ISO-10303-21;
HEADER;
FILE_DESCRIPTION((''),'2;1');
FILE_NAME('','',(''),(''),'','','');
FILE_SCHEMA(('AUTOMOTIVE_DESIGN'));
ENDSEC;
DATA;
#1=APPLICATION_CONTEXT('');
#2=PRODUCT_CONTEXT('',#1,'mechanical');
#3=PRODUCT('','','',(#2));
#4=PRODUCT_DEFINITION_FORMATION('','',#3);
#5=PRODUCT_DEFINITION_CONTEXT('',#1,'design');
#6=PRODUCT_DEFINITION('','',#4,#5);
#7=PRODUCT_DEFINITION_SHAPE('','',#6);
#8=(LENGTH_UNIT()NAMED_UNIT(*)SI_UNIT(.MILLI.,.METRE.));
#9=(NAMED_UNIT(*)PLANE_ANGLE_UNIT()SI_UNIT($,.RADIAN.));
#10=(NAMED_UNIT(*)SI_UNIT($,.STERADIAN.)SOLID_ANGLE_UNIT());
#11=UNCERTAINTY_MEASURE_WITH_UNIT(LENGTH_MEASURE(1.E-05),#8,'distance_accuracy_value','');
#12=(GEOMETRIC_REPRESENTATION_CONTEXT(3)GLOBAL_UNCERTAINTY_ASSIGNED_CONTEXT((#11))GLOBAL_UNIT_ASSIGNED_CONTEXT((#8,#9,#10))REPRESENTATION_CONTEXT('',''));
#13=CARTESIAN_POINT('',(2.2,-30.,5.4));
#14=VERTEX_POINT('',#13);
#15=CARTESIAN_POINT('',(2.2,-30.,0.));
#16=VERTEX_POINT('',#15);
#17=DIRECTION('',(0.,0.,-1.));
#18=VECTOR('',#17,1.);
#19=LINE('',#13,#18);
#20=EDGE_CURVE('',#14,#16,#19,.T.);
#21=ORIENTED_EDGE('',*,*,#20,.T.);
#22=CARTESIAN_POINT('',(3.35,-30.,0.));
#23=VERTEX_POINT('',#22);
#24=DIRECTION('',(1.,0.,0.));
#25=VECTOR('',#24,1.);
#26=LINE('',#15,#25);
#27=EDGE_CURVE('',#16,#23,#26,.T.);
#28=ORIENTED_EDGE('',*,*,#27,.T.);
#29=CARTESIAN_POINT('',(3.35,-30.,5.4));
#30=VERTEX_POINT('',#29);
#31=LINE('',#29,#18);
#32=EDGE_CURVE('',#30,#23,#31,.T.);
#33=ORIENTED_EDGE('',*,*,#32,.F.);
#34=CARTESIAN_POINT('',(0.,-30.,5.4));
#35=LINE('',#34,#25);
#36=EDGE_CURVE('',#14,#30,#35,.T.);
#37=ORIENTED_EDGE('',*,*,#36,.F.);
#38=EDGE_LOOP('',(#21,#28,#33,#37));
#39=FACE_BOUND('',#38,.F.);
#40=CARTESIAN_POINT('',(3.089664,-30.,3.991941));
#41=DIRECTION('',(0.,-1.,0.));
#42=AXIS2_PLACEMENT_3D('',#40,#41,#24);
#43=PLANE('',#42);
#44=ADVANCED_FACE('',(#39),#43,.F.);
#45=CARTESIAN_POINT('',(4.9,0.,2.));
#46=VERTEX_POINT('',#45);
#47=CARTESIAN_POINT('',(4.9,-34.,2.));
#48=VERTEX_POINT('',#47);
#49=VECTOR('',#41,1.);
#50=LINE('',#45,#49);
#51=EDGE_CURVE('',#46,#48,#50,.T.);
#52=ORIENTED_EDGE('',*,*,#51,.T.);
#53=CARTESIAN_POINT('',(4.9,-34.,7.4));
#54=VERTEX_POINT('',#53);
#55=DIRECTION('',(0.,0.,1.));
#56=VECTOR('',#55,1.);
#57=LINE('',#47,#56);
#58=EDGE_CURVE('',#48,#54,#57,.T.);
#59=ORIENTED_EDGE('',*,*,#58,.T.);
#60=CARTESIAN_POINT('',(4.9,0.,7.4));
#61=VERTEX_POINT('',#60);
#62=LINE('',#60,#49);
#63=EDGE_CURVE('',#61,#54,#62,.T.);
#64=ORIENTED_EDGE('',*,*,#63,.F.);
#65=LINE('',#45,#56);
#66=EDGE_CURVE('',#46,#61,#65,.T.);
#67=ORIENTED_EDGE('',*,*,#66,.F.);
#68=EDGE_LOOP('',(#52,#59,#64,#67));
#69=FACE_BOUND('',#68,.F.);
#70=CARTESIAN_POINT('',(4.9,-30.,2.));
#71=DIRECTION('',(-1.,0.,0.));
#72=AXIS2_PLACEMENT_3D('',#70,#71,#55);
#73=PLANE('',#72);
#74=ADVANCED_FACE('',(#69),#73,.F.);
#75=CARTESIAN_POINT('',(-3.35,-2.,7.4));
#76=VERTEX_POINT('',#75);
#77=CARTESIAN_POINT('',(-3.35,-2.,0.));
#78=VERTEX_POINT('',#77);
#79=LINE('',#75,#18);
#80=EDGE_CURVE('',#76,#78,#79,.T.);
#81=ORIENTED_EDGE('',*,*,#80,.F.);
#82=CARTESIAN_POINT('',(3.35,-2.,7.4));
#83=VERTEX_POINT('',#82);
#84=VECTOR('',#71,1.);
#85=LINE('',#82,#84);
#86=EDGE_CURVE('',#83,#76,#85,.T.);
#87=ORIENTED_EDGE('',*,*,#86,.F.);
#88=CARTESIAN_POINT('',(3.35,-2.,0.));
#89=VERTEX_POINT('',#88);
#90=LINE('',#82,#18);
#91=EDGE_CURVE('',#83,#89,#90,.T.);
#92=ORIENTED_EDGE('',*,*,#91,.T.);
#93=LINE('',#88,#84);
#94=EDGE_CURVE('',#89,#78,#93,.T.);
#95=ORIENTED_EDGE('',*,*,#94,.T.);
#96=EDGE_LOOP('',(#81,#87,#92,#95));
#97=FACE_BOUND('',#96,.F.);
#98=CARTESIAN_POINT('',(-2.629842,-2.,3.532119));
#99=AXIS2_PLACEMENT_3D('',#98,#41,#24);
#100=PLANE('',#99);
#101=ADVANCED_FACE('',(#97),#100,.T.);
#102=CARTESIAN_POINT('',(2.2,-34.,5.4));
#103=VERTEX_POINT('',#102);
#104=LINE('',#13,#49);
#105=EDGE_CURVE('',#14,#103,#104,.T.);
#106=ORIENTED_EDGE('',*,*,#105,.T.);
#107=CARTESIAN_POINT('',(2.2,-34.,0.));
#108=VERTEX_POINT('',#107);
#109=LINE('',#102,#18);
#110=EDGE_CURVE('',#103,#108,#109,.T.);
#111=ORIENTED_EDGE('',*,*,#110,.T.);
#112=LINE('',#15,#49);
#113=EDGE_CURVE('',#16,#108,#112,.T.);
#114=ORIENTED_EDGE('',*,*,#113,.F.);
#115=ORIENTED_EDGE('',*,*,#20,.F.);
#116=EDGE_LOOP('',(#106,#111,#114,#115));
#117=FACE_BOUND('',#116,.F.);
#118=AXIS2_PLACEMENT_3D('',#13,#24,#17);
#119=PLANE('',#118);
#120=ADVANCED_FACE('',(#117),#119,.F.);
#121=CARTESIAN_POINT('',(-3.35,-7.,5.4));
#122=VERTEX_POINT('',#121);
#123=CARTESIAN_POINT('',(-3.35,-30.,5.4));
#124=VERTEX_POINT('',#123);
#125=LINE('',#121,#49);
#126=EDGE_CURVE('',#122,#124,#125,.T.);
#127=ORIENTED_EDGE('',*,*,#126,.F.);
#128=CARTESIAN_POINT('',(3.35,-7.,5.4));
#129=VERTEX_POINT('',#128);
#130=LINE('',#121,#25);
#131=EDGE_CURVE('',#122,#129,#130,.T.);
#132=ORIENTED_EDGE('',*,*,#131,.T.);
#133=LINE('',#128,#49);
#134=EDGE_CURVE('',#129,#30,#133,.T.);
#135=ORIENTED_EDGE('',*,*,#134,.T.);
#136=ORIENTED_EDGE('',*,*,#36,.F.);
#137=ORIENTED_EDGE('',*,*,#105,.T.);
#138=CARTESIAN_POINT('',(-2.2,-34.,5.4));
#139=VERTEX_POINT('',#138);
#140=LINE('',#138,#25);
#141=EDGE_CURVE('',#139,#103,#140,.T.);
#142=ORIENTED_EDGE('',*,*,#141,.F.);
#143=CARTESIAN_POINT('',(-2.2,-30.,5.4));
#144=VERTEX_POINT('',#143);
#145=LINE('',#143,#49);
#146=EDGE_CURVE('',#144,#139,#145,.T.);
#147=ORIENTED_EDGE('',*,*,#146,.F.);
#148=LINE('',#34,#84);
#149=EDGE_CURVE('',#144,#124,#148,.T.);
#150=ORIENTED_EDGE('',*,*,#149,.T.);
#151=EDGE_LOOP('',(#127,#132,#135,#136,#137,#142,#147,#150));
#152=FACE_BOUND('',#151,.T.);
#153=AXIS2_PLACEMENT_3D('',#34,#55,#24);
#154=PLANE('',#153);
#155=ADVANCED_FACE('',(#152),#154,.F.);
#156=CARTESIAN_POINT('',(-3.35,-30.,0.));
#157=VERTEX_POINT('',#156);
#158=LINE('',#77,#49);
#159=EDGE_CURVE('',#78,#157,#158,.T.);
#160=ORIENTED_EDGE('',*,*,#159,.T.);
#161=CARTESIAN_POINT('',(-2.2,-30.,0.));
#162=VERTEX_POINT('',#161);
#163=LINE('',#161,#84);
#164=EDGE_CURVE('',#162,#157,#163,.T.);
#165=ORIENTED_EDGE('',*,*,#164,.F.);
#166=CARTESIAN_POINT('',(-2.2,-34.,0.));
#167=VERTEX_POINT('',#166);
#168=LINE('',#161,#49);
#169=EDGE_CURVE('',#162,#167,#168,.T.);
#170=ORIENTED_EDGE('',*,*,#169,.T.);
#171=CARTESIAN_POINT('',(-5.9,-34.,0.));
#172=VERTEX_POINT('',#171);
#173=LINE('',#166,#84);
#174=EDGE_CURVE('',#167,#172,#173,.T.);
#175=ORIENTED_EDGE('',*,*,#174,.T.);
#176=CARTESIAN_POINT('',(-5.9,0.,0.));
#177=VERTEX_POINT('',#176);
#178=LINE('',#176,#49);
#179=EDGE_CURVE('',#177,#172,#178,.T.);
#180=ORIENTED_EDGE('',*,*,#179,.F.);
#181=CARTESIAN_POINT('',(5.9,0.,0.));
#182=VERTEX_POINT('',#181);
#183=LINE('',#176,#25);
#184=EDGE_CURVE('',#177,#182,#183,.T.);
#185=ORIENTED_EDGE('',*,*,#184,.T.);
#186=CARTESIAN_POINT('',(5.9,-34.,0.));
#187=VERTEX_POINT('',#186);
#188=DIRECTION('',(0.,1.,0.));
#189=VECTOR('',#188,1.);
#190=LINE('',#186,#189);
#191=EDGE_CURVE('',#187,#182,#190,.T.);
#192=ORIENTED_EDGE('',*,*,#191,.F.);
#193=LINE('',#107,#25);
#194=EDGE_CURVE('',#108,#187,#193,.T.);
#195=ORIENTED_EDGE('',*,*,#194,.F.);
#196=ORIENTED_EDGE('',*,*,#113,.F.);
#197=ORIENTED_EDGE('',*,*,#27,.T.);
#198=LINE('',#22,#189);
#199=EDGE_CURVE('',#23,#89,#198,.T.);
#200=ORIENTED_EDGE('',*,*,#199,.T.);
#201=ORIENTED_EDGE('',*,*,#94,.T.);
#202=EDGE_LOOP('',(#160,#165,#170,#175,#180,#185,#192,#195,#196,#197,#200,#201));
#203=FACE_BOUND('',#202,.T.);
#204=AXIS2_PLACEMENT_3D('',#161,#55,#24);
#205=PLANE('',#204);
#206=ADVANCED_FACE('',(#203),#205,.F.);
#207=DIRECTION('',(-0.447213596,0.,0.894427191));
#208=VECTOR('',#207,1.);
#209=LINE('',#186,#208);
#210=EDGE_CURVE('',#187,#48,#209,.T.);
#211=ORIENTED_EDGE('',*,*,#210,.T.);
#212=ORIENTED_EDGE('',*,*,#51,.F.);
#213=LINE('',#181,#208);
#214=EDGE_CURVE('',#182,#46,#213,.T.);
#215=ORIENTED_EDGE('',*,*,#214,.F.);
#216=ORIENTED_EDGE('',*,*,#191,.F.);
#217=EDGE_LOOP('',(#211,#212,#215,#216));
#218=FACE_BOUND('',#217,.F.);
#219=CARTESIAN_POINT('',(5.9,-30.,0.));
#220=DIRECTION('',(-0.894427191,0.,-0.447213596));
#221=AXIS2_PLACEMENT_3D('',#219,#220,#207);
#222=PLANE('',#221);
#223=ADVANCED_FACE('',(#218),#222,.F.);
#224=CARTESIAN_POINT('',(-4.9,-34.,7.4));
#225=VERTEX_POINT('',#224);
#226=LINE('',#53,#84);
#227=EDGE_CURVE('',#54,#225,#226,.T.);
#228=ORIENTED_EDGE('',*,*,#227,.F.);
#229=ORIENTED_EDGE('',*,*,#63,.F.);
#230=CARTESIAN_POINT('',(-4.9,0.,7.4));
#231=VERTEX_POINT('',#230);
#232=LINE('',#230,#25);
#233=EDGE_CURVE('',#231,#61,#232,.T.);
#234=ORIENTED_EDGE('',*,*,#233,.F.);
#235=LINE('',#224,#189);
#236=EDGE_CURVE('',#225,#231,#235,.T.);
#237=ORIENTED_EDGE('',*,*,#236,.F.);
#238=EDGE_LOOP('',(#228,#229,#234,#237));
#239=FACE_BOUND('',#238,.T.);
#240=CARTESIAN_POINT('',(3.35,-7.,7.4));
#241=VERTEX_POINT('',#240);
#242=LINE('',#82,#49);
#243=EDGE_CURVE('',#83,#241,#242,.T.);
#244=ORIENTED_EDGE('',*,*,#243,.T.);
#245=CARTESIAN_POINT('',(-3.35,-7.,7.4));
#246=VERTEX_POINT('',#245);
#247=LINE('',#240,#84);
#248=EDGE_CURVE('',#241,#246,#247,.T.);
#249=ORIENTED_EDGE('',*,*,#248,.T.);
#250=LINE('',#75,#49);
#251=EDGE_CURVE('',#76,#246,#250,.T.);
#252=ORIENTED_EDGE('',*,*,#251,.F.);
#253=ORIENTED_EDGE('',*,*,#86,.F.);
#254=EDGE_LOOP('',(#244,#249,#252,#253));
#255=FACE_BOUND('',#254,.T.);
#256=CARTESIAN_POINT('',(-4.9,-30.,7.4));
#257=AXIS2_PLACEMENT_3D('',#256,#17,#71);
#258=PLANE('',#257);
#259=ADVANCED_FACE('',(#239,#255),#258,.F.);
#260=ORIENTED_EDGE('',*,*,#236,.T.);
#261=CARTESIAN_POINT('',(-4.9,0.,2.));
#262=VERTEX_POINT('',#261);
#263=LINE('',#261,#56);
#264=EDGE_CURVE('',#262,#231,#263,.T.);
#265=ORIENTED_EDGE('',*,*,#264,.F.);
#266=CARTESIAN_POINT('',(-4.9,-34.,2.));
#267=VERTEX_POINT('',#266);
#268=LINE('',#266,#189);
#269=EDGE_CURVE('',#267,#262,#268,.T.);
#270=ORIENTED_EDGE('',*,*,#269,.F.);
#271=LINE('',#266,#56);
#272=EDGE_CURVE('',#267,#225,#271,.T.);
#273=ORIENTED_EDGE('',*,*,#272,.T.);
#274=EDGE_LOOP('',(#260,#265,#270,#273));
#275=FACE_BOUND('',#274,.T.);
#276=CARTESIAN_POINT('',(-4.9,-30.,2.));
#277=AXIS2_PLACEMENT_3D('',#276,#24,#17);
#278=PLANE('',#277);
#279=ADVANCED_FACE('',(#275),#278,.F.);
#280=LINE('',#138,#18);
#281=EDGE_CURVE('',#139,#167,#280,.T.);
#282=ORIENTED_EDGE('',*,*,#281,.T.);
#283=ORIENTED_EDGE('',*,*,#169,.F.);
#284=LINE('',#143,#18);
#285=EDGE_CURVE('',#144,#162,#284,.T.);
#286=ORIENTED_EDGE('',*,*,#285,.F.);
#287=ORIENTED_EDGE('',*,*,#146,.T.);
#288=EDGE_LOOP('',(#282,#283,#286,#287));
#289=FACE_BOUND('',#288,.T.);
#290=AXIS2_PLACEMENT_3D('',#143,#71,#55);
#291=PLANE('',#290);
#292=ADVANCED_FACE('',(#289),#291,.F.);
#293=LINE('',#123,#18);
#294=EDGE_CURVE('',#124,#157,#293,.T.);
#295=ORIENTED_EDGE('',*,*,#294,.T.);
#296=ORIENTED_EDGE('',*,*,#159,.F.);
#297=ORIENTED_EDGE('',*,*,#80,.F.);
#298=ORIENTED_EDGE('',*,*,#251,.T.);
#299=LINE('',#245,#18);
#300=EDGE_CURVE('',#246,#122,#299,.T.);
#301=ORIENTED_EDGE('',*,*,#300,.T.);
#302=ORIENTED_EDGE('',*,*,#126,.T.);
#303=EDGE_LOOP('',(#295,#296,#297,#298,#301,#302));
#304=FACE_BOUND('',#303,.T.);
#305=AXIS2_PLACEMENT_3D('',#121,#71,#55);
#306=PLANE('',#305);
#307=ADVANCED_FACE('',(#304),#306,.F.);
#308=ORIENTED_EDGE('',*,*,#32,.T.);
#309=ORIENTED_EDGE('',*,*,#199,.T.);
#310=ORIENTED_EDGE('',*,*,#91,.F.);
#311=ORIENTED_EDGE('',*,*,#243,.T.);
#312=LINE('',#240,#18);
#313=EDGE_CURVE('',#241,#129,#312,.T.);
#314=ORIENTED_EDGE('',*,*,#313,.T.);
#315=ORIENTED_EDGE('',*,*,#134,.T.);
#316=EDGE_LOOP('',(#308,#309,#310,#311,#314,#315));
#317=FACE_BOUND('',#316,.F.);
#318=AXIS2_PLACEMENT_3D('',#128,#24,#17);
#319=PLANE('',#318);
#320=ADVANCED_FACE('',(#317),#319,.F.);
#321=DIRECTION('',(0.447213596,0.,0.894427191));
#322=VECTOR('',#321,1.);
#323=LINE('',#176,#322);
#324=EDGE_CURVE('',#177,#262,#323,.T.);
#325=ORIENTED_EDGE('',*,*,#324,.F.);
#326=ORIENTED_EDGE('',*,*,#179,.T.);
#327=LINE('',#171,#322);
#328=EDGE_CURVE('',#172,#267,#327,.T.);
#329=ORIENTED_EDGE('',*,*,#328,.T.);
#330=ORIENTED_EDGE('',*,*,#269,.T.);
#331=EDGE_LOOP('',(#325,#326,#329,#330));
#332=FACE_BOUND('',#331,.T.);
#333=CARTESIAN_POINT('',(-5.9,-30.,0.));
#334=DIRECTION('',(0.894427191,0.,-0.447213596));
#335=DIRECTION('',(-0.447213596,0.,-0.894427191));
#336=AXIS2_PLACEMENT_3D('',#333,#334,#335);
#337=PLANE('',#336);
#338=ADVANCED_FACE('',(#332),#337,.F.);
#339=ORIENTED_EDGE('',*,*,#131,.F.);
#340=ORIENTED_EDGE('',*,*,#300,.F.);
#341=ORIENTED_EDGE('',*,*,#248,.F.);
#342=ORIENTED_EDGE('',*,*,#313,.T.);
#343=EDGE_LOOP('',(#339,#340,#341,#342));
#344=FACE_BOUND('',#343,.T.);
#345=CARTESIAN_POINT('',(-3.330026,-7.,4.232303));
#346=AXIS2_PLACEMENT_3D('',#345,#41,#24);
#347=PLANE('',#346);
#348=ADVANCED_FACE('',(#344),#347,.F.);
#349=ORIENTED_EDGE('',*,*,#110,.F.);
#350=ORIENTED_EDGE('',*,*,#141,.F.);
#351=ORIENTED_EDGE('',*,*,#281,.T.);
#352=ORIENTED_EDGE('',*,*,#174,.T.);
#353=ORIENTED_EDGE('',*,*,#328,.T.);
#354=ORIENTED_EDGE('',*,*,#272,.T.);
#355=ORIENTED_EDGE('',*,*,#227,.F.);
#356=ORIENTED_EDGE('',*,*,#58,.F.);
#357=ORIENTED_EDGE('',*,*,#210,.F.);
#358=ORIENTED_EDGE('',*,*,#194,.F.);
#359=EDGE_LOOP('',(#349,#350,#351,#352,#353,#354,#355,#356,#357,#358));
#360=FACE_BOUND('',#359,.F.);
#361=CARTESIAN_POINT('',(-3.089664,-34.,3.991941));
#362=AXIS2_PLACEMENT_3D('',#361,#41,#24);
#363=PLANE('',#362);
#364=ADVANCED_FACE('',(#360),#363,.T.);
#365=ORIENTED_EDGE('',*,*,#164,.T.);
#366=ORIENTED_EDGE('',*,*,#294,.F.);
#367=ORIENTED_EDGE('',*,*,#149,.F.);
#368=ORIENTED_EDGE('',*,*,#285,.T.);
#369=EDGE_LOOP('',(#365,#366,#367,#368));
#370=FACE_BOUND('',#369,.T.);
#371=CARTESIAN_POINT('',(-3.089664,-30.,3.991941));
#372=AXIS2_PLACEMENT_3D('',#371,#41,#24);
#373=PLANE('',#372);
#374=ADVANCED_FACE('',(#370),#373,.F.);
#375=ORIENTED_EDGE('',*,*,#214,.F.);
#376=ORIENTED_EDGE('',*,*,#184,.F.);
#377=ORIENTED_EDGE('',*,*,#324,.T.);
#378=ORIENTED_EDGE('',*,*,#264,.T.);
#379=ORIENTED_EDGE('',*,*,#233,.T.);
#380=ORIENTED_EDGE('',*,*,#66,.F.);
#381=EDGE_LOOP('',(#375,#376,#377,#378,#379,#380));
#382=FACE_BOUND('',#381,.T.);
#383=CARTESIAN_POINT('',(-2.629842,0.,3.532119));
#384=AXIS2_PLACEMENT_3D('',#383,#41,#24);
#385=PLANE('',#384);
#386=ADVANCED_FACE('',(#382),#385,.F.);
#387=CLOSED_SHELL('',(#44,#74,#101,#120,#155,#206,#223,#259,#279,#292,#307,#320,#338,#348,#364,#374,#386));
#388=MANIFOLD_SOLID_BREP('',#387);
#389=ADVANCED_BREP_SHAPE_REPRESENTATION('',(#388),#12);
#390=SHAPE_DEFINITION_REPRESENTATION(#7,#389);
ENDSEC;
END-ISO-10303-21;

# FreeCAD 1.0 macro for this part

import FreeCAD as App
import Part
import Sketcher
from FreeCAD import Vector
Q = App.Units.Quantity

doc = App.newDocument("Part")
body = doc.addObject("PartDesign::Body", "Body")

# Sketch on XZ plane
sketch1 = doc.addObject("Sketcher::SketchObject", "Sketch")
body.addObject(sketch1)
sketch1.AttachmentSupport = (doc.XZ_Plane, [""])
sketch1.MapMode = "FlatFace"
sketch1.addGeometry([
    Part.LineSegment(Vector(5.9, 0, 0), Vector(4.9, 2, 0)),  # 0
    Part.LineSegment(Vector(4.9, 2, 0), Vector(4.9, 7.4, 0)),  # 1
    Part.LineSegment(Vector(4.9, 7.4, 0), Vector(0, 7.4, 0)),  # 2
    Part.LineSegment(Vector(0, 7.4, 0), Vector(0, 0, 0)),  # 3
    Part.LineSegment(Vector(0, 0, 0), Vector(5.9, 0, 0)),  # 4
], False)
sketch1.addConstraint([
    Sketcher.Constraint("Coincident", 0, 2, 1, 1),
    Sketcher.Constraint("Coincident", 1, 2, 2, 1),
    Sketcher.Constraint("Coincident", 2, 2, 3, 1),
    Sketcher.Constraint("Coincident", 3, 2, 4, 1),
    Sketcher.Constraint("Coincident", 4, 2, 0, 1),
    Sketcher.Constraint("Vertical", 1),
    Sketcher.Constraint("Horizontal", 2),
    Sketcher.Constraint("Vertical", 3),
    Sketcher.Constraint("Horizontal", 4),
    Sketcher.Constraint("Coincident", 3, 2, -1, 1),
    Sketcher.Constraint("DistanceX", 2, 2, 2, 1, Q("4.9 mm")),
    Sketcher.Constraint("DistanceX", 4, 1, 4, 2, Q("5.9 mm")),
    Sketcher.Constraint("DistanceY", 1, 1, 1, 2, Q("5.4 mm")),
    Sketcher.Constraint("DistanceY", 3, 2, 3, 1, Q("7.4 mm")),
])
pad1 = doc.addObject("PartDesign::Pad", "Pad")
body.addObject(pad1)
pad1.Profile = sketch1
pad1.Length = 2

# Sketch on XZ plane
sketch2 = doc.addObject("Sketcher::SketchObject", "Sketch001")
body.addObject(sketch2)
sketch2.AttachmentSupport = (doc.XZ_Plane, [""])
sketch2.MapMode = "FlatFace"
sketch2.AttachmentOffset = App.Placement(Vector(0, 0, 2), App.Rotation())
sketch2.addGeometry([
    Part.LineSegment(Vector(5.9, 0, 0), Vector(4.9, 2, 0)),  # 0
    Part.LineSegment(Vector(4.9, 2, 0), Vector(4.9, 7.4, 0)),  # 1
    Part.LineSegment(Vector(4.9, 7.4, 0), Vector(3.4, 7.4, 0)),  # 2
    Part.LineSegment(Vector(3.4, 7.4, 0), Vector(3.4, 0, 0)),  # 3
    Part.LineSegment(Vector(3.4, 0, 0), Vector(5.9, 0, 0)),  # 4
], False)
sketch2.addConstraint([
    Sketcher.Constraint("Coincident", 0, 2, 1, 1),
    Sketcher.Constraint("Coincident", 1, 2, 2, 1),
    Sketcher.Constraint("Coincident", 2, 2, 3, 1),
    Sketcher.Constraint("Coincident", 3, 2, 4, 1),
    Sketcher.Constraint("Coincident", 4, 2, 0, 1),
    Sketcher.Constraint("Vertical", 1),
    Sketcher.Constraint("Horizontal", 2),
    Sketcher.Constraint("Vertical", 3),
    Sketcher.Constraint("Horizontal", 4),
    Sketcher.Constraint("PointOnObject", 3, 2, -1),
    Sketcher.Constraint("DistanceY", 1, 1, 1, 2, Q("5.4 mm")),
    Sketcher.Constraint("DistanceY", 3, 2, 3, 1, Q("7.4 mm")),
    Sketcher.Constraint("DistanceX", 0, 2, 4, 2, Q("1 mm")),
    Sketcher.Constraint("DistanceX", 2, 2, 2, 1, Q("1.55 mm")),
    Sketcher.Constraint("DistanceX", -1, 1, 0, 2, Q("4.9 mm")),
])
pad2 = doc.addObject("PartDesign::Pad", "Pad001")
body.addObject(pad2)
pad2.Profile = sketch2
pad2.Length = 5

# Sketch on XZ plane
sketch3 = doc.addObject("Sketcher::SketchObject", "Sketch002")
body.addObject(sketch3)
sketch3.AttachmentSupport = (doc.XZ_Plane, [""])
sketch3.MapMode = "FlatFace"
sketch3.AttachmentOffset = App.Placement(Vector(0, 0, 7), App.Rotation())
sketch3.addGeometry([
    Part.LineSegment(Vector(5.9, 0, 0), Vector(4.9, 2, 0)),  # 0
    Part.LineSegment(Vector(4.9, 2, 0), Vector(4.9, 7.4, 0)),  # 1
    Part.LineSegment(Vector(4.9, 7.4, 0), Vector(0, 7.4, 0)),  # 2
    Part.LineSegment(Vector(0, 7.4, 0), Vector(0, 5.4, 0)),  # 3
    Part.LineSegment(Vector(0, 5.4, 0), Vector(3.4, 5.4, 0)),  # 4
    Part.LineSegment(Vector(3.4, 5.4, 0), Vector(3.4, 0, 0)),  # 5
    Part.LineSegment(Vector(3.4, 0, 0), Vector(5.9, 0, 0)),  # 6
], False)
sketch3.addConstraint([
    Sketcher.Constraint("Coincident", 0, 2, 1, 1),
    Sketcher.Constraint("Coincident", 1, 2, 2, 1),
    Sketcher.Constraint("Coincident", 2, 2, 3, 1),
    Sketcher.Constraint("Coincident", 3, 2, 4, 1),
    Sketcher.Constraint("Coincident", 4, 2, 5, 1),
    Sketcher.Constraint("Coincident", 5, 2, 6, 1),
    Sketcher.Constraint("Coincident", 6, 2, 0, 1),
    Sketcher.Constraint("Vertical", 1),
    Sketcher.Constraint("Horizontal", 2),
    Sketcher.Constraint("Vertical", 3),
    Sketcher.Constraint("Horizontal", 4),
    Sketcher.Constraint("Vertical", 5),
    Sketcher.Constraint("Horizontal", 6),
    Sketcher.Constraint("PointOnObject", 2, 2, -2),
    Sketcher.Constraint("PointOnObject", 5, 2, -1),
    Sketcher.Constraint("Equal", 1, 5),
    Sketcher.Constraint("DistanceY", 3, 2, 3, 1, Q("2 mm")),
    Sketcher.Constraint("DistanceX", 2, 2, 2, 1, Q("4.9 mm")),
    Sketcher.Constraint("DistanceY", 1, 1, 1, 2, Q("5.4 mm")),
    Sketcher.Constraint("DistanceX", 0, 2, 6, 2, Q("1 mm")),
    Sketcher.Constraint("DistanceX", 4, 1, 4, 2, Q("3.35 mm")),
])
pad3 = doc.addObject("PartDesign::Pad", "Pad002")
body.addObject(pad3)
pad3.Profile = sketch3
pad3.Length = 23

# Sketch on XZ plane
sketch4 = doc.addObject("Sketcher::SketchObject", "Sketch003")
body.addObject(sketch4)
sketch4.AttachmentSupport = (doc.XZ_Plane, [""])
sketch4.MapMode = "FlatFace"
sketch4.AttachmentOffset = App.Placement(Vector(0, 0, 30), App.Rotation())
sketch4.addGeometry([
    Part.LineSegment(Vector(5.9, 0, 0), Vector(4.9, 2, 0)),  # 0
    Part.LineSegment(Vector(4.9, 2, 0), Vector(4.9, 7.4, 0)),  # 1
    Part.LineSegment(Vector(4.9, 7.4, 0), Vector(0, 7.4, 0)),  # 2
    Part.LineSegment(Vector(0, 7.4, 0), Vector(0, 5.4, 0)),  # 3
    Part.LineSegment(Vector(0, 5.4, 0), Vector(2.2, 5.4, 0)),  # 4
    Part.LineSegment(Vector(2.2, 5.4, 0), Vector(2.2, 0, 0)),  # 5
    Part.LineSegment(Vector(2.2, 0, 0), Vector(5.9, 0, 0)),  # 6
], False)
sketch4.addConstraint([
    Sketcher.Constraint("Coincident", 0, 2, 1, 1),
    Sketcher.Constraint("Coincident", 1, 2, 2, 1),
    Sketcher.Constraint("Coincident", 2, 2, 3, 1),
    Sketcher.Constraint("Coincident", 3, 2, 4, 1),
    Sketcher.Constraint("Coincident", 4, 2, 5, 1),
    Sketcher.Constraint("Coincident", 5, 2, 6, 1),
    Sketcher.Constraint("Coincident", 6, 2, 0, 1),
    Sketcher.Constraint("Vertical", 1),
    Sketcher.Constraint("Horizontal", 2),
    Sketcher.Constraint("Vertical", 3),
    Sketcher.Constraint("Horizontal", 4),
    Sketcher.Constraint("Vertical", 5),
    Sketcher.Constraint("Horizontal", 6),
    Sketcher.Constraint("PointOnObject", 2, 2, -2),
    Sketcher.Constraint("PointOnObject", 5, 2, -1),
    Sketcher.Constraint("Equal", 1, 5),
    Sketcher.Constraint("DistanceY", 3, 2, 3, 1, Q("2 mm")),
    Sketcher.Constraint("DistanceX", 2, 2, 2, 1, Q("4.9 mm")),
    Sketcher.Constraint("DistanceX", 4, 1, 4, 2, Q("2.2 mm")),
    Sketcher.Constraint("DistanceX", 6, 1, 6, 2, Q("3.7 mm")),
    Sketcher.Constraint("DistanceY", 1, 1, 1, 2, Q("5.4 mm")),
])
pad4 = doc.addObject("PartDesign::Pad", "Pad003")
body.addObject(pad4)
pad4.Profile = sketch4
pad4.Length = 4
doc.recompute()

mirrored = doc.addObject("PartDesign::Mirrored", "Mirrored")
body.addObject(mirrored)
mirrored.Originals = [pad1, pad2, pad3, pad4]
mirrored.MirrorPlane = (doc.YZ_Plane, [""])
body.Tip = mirrored

doc.recompute()
